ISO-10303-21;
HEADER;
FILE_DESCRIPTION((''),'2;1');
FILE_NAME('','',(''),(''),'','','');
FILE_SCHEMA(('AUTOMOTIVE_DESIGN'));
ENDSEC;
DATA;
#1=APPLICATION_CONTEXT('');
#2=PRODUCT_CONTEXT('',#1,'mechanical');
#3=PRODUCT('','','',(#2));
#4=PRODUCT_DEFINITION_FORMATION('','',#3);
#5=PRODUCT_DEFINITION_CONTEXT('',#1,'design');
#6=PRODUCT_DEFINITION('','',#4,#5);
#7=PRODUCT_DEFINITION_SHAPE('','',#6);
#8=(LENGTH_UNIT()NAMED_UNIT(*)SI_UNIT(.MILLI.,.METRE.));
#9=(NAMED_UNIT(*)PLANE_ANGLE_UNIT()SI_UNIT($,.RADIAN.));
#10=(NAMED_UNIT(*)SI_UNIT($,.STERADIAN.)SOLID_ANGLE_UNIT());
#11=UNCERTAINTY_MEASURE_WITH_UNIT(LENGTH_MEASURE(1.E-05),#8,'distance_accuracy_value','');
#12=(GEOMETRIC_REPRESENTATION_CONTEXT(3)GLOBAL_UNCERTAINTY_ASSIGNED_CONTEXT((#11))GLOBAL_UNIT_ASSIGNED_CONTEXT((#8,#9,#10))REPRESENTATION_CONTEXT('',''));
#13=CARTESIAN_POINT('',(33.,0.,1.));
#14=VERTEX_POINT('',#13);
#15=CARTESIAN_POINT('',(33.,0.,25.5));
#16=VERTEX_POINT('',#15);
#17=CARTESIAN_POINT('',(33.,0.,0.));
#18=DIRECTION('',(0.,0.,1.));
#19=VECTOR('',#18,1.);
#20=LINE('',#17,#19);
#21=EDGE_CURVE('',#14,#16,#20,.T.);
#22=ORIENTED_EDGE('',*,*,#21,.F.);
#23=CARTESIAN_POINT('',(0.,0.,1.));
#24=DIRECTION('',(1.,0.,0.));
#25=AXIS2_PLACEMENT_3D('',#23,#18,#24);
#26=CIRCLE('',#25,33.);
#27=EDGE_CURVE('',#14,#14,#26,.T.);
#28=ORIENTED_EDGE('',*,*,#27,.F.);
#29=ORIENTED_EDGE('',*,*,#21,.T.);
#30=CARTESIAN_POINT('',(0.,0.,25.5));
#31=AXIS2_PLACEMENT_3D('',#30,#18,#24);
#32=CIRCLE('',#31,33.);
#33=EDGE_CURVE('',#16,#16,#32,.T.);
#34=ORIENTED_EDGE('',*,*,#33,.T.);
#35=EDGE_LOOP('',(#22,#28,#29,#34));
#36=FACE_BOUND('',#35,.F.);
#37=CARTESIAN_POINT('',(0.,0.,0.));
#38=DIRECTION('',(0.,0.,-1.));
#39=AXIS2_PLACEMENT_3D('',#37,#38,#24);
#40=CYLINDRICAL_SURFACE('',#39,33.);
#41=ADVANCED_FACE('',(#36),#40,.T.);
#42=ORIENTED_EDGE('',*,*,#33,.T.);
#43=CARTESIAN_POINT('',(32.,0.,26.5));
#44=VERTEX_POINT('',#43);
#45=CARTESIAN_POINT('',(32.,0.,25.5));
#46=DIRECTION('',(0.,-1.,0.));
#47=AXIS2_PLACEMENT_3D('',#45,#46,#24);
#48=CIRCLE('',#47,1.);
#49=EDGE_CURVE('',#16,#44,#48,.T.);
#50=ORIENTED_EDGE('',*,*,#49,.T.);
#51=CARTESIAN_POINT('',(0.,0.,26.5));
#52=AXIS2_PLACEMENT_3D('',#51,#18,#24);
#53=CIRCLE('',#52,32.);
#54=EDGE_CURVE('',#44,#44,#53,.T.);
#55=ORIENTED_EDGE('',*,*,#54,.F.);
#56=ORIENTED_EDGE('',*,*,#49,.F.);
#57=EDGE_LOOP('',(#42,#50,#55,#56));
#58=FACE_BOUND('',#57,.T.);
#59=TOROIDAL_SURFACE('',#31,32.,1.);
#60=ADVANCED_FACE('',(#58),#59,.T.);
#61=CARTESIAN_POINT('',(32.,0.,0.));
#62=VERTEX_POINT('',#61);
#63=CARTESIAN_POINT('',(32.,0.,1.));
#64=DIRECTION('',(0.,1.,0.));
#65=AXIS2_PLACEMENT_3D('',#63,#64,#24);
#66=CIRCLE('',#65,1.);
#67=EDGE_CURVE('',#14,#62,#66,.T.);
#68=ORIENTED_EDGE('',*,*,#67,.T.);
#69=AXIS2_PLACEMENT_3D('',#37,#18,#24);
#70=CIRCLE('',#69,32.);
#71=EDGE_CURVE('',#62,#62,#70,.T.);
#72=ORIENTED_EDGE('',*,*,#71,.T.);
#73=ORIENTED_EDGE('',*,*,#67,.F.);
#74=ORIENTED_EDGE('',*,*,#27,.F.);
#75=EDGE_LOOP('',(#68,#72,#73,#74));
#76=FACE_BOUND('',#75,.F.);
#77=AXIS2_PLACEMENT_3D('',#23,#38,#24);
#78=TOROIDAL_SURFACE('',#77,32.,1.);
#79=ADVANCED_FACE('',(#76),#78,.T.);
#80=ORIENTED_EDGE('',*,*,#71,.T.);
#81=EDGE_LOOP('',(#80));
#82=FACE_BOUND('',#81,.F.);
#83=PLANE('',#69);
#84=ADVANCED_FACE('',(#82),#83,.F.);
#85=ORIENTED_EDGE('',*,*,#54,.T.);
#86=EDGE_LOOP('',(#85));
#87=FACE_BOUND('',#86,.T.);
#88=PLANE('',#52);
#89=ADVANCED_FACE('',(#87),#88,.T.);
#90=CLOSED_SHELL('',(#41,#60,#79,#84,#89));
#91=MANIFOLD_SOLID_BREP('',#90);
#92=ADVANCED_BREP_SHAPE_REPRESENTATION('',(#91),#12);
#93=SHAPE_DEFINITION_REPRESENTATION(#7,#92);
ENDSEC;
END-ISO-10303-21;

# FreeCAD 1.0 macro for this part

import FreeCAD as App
import Part
import Sketcher

V = App.Vector
Q = App.Units.Quantity


def edges_at(feature, points):
    """Names of the edges that pass closest to the given points."""
    edges = feature.Shape.Edges
    near = lambda p: min(range(len(edges)), key=lambda i: edges[i].distToShape(Part.Vertex(*p))[0])
    return sorted({f"Edge{near(p) + 1}" for p in points})

doc = App.newDocument("Part")
body = doc.addObject("PartDesign::Body", "Body")

sketch1 = body.newObject("Sketcher::SketchObject", "Sketch")
sketch1.AttachmentSupport = (doc.getObject("XY_Plane"), [""])
sketch1.MapMode = "FlatFace"
sketch1.addGeometry(Part.Circle(V(0, 0, 0), V(0, 0, 1), 33), False)
sketch1.addConstraint([
    Sketcher.Constraint("Coincident", 0, 3, -1, 1),
    Sketcher.Constraint("Diameter", 0, Q("66 mm")),
])
pad1 = body.newObject("PartDesign::Pad", "Pad")
pad1.Profile = sketch1
pad1.Length = 26.5
doc.recompute()

fillet = body.newObject("PartDesign::Fillet", "Fillet")
fillet.Base = (pad1, edges_at(pad1, [(-33, 0, 0)]))
fillet.Radius = 1
doc.recompute()

fillet2 = body.newObject("PartDesign::Fillet", "Fillet001")
fillet2.Base = (fillet, edges_at(fillet, [(-33, 0, 26.5)]))
fillet2.Radius = 1

doc.recompute()
